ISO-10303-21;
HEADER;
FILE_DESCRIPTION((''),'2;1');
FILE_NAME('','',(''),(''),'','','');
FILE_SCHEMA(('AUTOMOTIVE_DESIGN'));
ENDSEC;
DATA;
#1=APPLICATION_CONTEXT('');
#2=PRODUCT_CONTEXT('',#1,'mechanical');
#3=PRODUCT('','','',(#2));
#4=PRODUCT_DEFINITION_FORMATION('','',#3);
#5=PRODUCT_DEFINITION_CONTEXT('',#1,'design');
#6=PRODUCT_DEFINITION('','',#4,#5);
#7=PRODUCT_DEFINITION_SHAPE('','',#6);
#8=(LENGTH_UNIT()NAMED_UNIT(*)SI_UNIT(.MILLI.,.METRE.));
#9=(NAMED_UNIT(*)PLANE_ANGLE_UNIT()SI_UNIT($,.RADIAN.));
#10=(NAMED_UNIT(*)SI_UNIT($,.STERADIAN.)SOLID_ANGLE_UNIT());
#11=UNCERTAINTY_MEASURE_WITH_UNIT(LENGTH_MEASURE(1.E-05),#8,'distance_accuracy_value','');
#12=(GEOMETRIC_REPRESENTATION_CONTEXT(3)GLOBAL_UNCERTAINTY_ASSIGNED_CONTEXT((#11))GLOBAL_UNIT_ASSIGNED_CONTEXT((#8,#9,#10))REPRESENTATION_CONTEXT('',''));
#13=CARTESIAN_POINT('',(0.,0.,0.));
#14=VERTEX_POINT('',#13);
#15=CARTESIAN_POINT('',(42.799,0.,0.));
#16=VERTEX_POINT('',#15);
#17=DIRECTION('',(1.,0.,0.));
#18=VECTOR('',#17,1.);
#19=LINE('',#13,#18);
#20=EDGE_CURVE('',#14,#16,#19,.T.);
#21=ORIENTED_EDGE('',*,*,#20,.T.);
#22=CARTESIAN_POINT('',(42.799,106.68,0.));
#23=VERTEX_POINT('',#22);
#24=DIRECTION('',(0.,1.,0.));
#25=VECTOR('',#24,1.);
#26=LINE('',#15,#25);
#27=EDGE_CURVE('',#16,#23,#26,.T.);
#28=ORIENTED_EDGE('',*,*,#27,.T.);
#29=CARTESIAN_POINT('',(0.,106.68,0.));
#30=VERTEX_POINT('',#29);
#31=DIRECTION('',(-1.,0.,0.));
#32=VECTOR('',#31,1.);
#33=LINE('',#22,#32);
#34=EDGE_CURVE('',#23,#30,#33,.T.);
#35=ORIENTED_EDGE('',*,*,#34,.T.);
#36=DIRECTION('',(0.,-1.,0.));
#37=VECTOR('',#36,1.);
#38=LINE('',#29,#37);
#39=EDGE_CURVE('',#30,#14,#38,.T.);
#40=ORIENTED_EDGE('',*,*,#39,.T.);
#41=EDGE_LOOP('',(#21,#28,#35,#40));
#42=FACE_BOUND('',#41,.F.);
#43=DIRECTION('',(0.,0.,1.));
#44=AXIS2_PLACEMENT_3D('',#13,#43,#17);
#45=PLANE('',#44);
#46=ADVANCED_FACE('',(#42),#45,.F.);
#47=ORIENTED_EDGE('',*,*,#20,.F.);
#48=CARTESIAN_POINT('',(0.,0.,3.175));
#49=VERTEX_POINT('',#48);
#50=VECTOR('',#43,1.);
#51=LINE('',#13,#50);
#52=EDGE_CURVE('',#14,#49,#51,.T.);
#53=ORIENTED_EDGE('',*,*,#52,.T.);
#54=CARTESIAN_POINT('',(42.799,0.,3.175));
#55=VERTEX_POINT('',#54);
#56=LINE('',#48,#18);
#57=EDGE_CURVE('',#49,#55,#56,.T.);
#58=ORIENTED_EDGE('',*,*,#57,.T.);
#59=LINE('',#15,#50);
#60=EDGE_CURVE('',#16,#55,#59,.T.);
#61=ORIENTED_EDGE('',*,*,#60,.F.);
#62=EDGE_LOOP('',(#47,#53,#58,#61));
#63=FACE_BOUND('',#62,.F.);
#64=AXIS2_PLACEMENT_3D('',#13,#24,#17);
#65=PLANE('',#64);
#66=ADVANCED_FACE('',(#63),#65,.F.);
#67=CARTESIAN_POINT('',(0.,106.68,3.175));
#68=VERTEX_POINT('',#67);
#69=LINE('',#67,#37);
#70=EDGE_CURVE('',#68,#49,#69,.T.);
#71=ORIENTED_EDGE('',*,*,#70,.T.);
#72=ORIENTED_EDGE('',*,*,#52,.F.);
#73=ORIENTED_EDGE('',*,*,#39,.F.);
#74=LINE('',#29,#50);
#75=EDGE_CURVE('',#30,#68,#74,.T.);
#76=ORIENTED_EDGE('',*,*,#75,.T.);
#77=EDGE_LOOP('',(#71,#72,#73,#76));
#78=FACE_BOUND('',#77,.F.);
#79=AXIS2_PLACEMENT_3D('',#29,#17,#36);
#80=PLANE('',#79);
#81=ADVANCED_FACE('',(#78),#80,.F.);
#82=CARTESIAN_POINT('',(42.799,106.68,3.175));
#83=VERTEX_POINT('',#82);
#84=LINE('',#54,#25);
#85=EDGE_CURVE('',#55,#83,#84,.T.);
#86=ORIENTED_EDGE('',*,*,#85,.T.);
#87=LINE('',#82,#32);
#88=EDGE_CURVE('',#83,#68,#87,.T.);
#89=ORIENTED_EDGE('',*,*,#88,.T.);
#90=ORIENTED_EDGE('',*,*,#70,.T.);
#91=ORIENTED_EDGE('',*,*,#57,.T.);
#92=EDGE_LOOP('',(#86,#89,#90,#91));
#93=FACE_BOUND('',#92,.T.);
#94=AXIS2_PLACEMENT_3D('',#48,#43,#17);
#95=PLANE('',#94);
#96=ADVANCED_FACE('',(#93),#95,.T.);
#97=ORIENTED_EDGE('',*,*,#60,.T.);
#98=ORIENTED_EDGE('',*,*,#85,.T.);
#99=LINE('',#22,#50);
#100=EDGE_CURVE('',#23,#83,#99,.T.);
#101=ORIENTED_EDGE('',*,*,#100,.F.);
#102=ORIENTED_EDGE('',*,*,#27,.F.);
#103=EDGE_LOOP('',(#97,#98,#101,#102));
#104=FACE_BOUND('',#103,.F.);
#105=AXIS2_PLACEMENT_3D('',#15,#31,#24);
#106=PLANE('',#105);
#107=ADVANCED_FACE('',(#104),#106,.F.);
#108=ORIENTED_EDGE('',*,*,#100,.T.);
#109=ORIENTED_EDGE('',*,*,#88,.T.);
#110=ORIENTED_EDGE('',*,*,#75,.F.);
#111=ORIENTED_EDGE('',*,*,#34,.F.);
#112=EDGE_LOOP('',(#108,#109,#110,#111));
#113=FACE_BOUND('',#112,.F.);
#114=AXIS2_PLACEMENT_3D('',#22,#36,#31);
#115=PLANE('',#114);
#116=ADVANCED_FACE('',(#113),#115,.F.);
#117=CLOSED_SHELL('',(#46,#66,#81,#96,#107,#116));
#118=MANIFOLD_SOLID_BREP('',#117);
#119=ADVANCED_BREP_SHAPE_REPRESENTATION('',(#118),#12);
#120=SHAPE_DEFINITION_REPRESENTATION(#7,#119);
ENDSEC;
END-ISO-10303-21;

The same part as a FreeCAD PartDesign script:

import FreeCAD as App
import Part
import Sketcher
from FreeCAD import Vector
Q = App.Units.Quantity

doc = App.newDocument("Part")
body = doc.addObject("PartDesign::Body", "Body")

sketch1 = body.newObject("Sketcher::SketchObject", "Sketch")
sketch1.AttachmentSupport = (doc.getObject("XY_Plane"), [""])
sketch1.MapMode = "FlatFace"
sketch1.addGeometry([
    Part.LineSegment(Vector(0, 106.68, 0), Vector(0, 0, 0)),
    Part.LineSegment(Vector(0, 0, 0), Vector(42.799, 0, 0)),
    Part.LineSegment(Vector(42.799, 0, 0), Vector(42.799, 106.68, 0)),
    Part.LineSegment(Vector(42.799, 106.68, 0), Vector(0, 106.68, 0)),
], False)
sketch1.addConstraint([
    Sketcher.Constraint("Coincident", 0, 2, 1, 1),
    Sketcher.Constraint("Coincident", 1, 2, 2, 1),
    Sketcher.Constraint("Coincident", 2, 2, 3, 1),
    Sketcher.Constraint("Coincident", 3, 2, 0, 1),
    Sketcher.Constraint("Vertical", 0),
    Sketcher.Constraint("Horizontal", 1),
    Sketcher.Constraint("Vertical", 2),
    Sketcher.Constraint("Horizontal", 3),
    Sketcher.Constraint("Coincident", 0, 2, -1, 1),
    Sketcher.Constraint("DistanceY", 0, 2, 0, 1, Q("4.2 in")),
    Sketcher.Constraint("DistanceX", 1, 1, 1, 2, Q("1.685 in")),
])
pad1 = body.newObject("PartDesign::Pad", "Pad")
pad1.Profile = sketch1
pad1.Length = Q("0.125 in")

doc.recompute()
